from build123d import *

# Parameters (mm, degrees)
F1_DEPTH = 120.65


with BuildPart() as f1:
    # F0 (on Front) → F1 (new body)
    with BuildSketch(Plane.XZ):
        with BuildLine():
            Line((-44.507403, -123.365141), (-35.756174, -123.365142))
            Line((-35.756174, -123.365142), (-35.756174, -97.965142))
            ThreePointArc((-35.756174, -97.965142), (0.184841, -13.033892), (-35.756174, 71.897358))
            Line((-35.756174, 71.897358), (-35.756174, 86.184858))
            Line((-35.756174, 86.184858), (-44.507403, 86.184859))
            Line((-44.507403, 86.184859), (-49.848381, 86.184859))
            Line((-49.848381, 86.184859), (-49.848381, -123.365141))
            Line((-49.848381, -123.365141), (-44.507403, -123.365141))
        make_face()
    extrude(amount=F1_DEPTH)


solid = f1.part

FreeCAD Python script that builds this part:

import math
import FreeCAD as App
import Part
import Sketcher

V = App.Vector
Q = App.Units.Quantity

doc = App.newDocument("Part")
body = doc.addObject("PartDesign::Body", "Body")

# Sketch on XZ plane
sketch1 = doc.addObject("Sketcher::SketchObject", "Sketch")
body.addObject(sketch1)
sketch1.AttachmentSupport = (doc.XZ_Plane, [""])
sketch1.MapMode = "FlatFace"
sketch1.addGeometry(Part.LineSegment(V(-45, -123, 0), V(-36, -123, 0)), False)
sketch1.addGeometry(Part.LineSegment(V(-36, -123, 0), V(-36, -98, 0)), False)
sketch1.addGeometry(Part.ArcOfCircle(Part.Circle(V(-118, -13, 0), V(0, 0, 1), 118), math.radians(-46), math.radians(46)), False)
sketch1.addGeometry(Part.LineSegment(V(-36, 72, 0), V(-36, 86, 0)), False)
sketch1.addGeometry(Part.LineSegment(V(-36, 86, 0), V(-45, 86, 0)), False)
sketch1.addGeometry(Part.LineSegment(V(-45, 86, 0), V(-50, 86, 0)), False)
sketch1.addGeometry(Part.LineSegment(V(-50, 86, 0), V(-50, -123, 0)), False)
sketch1.addGeometry(Part.LineSegment(V(-50, -123, 0), V(-45, -123, 0)), False)
sketch1.addConstraint(Sketcher.Constraint("Coincident", 0, 2, 1, 1))
sketch1.addConstraint(Sketcher.Constraint("Coincident", 1, 2, 2, 1))
sketch1.addConstraint(Sketcher.Constraint("Coincident", 2, 2, 3, 1))
sketch1.addConstraint(Sketcher.Constraint("Coincident", 3, 2, 4, 1))
sketch1.addConstraint(Sketcher.Constraint("Coincident", 4, 2, 5, 1))
sketch1.addConstraint(Sketcher.Constraint("Coincident", 5, 2, 6, 1))
sketch1.addConstraint(Sketcher.Constraint("Coincident", 6, 2, 7, 1))
sketch1.addConstraint(Sketcher.Constraint("Coincident", 7, 2, 0, 1))
sketch1.addConstraint(Sketcher.Constraint("Horizontal", 0))
sketch1.addConstraint(Sketcher.Constraint("Vertical", 1))
sketch1.addConstraint(Sketcher.Constraint("Vertical", 3))
sketch1.addConstraint(Sketcher.Constraint("Horizontal", 4))
sketch1.addConstraint(Sketcher.Constraint("Horizontal", 5))
sketch1.addConstraint(Sketcher.Constraint("Vertical", 6))
sketch1.addConstraint(Sketcher.Constraint("Horizontal", 7))
sketch1.addConstraint(Sketcher.Constraint("Vertical", 1, 2, 2, 2))
sketch1.addConstraint(Sketcher.Constraint("Vertical", 4, 2, 7, 2))
sketch1.addConstraint(Sketcher.Constraint("DistanceY", 1, 1, 1, 2, Q("1 in")))
sketch1.addConstraint(Sketcher.Constraint("DistanceY", 6, 2, 6, 1, Q("8.25 in")))
sketch1.addConstraint(Sketcher.Constraint("DistanceY", 3, 1, 3, 2, Q("0.5625 in")))
sketch1.addConstraint(Sketcher.Constraint("Radius", 2, Q("118.319889 mm")))
sketch1.addConstraint(Sketcher.Constraint("DistanceX", 0, 1, 0, 2, Q("8.751229 mm")))
sketch1.addConstraint(Sketcher.Constraint("DistanceX", 5, 2, 5, 1, Q("5.340978 mm")))
sketch1.addConstraint(Sketcher.Constraint("DistanceY", 1, 2, -1, 1, Q("97.965142 mm")))
sketch1.addConstraint(Sketcher.Constraint("DistanceX", 5, 2, -1, 1, Q("49.848381 mm")))
pad1 = doc.addObject("PartDesign::Pad", "Pad")
body.addObject(pad1)
pad1.Profile = sketch1
pad1.Length = Q("4.75 in")

doc.recompute()
